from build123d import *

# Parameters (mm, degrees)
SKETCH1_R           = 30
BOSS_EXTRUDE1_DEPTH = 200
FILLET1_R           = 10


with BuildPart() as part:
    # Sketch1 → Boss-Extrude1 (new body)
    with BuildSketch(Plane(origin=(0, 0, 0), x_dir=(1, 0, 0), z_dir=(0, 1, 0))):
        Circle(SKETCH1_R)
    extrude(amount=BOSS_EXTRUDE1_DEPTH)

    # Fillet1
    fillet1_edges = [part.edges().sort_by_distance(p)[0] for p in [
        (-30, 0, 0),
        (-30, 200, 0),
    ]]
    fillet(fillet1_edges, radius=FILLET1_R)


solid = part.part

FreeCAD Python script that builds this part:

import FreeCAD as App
import Part
import Sketcher
Q = App.Units.Quantity


def edges_at(feature, points):
    """Names of the edges that pass closest to the given points."""
    edges = feature.Shape.Edges
    near = lambda p: min(range(len(edges)), key=lambda i: edges[i].distToShape(Part.Vertex(*p))[0])
    return sorted({f"Edge{near(p) + 1}" for p in points})

doc = App.newDocument("Part")
body = doc.addObject("PartDesign::Body", "Body")

# Sketch on XZ plane
sketch1 = body.newObject("Sketcher::SketchObject", "Sketch")
sketch1.AttachmentSupport = (doc.getObject("XZ_Plane"), [""])
sketch1.MapMode = "FlatFace"
sketch1.addGeometry(Part.Circle(App.Vector(0, 0, 0), App.Vector(0, 0, 1), 30), False)
sketch1.addConstraint([
    Sketcher.Constraint("Coincident", 0, 3, -1, 1),
    Sketcher.Constraint("Diameter", 0, Q("60 mm")),
])
pad1 = body.newObject("PartDesign::Pad", "Pad")
pad1.Profile = sketch1
pad1.Length = 200
pad1.Reversed = True
doc.recompute()

fillet = body.newObject("PartDesign::Fillet", "Fillet")
fillet.Base = (pad1, edges_at(pad1, [(-30, 0, 0), (-30, 200, 0)]))
fillet.Radius = 10

doc.recompute()
